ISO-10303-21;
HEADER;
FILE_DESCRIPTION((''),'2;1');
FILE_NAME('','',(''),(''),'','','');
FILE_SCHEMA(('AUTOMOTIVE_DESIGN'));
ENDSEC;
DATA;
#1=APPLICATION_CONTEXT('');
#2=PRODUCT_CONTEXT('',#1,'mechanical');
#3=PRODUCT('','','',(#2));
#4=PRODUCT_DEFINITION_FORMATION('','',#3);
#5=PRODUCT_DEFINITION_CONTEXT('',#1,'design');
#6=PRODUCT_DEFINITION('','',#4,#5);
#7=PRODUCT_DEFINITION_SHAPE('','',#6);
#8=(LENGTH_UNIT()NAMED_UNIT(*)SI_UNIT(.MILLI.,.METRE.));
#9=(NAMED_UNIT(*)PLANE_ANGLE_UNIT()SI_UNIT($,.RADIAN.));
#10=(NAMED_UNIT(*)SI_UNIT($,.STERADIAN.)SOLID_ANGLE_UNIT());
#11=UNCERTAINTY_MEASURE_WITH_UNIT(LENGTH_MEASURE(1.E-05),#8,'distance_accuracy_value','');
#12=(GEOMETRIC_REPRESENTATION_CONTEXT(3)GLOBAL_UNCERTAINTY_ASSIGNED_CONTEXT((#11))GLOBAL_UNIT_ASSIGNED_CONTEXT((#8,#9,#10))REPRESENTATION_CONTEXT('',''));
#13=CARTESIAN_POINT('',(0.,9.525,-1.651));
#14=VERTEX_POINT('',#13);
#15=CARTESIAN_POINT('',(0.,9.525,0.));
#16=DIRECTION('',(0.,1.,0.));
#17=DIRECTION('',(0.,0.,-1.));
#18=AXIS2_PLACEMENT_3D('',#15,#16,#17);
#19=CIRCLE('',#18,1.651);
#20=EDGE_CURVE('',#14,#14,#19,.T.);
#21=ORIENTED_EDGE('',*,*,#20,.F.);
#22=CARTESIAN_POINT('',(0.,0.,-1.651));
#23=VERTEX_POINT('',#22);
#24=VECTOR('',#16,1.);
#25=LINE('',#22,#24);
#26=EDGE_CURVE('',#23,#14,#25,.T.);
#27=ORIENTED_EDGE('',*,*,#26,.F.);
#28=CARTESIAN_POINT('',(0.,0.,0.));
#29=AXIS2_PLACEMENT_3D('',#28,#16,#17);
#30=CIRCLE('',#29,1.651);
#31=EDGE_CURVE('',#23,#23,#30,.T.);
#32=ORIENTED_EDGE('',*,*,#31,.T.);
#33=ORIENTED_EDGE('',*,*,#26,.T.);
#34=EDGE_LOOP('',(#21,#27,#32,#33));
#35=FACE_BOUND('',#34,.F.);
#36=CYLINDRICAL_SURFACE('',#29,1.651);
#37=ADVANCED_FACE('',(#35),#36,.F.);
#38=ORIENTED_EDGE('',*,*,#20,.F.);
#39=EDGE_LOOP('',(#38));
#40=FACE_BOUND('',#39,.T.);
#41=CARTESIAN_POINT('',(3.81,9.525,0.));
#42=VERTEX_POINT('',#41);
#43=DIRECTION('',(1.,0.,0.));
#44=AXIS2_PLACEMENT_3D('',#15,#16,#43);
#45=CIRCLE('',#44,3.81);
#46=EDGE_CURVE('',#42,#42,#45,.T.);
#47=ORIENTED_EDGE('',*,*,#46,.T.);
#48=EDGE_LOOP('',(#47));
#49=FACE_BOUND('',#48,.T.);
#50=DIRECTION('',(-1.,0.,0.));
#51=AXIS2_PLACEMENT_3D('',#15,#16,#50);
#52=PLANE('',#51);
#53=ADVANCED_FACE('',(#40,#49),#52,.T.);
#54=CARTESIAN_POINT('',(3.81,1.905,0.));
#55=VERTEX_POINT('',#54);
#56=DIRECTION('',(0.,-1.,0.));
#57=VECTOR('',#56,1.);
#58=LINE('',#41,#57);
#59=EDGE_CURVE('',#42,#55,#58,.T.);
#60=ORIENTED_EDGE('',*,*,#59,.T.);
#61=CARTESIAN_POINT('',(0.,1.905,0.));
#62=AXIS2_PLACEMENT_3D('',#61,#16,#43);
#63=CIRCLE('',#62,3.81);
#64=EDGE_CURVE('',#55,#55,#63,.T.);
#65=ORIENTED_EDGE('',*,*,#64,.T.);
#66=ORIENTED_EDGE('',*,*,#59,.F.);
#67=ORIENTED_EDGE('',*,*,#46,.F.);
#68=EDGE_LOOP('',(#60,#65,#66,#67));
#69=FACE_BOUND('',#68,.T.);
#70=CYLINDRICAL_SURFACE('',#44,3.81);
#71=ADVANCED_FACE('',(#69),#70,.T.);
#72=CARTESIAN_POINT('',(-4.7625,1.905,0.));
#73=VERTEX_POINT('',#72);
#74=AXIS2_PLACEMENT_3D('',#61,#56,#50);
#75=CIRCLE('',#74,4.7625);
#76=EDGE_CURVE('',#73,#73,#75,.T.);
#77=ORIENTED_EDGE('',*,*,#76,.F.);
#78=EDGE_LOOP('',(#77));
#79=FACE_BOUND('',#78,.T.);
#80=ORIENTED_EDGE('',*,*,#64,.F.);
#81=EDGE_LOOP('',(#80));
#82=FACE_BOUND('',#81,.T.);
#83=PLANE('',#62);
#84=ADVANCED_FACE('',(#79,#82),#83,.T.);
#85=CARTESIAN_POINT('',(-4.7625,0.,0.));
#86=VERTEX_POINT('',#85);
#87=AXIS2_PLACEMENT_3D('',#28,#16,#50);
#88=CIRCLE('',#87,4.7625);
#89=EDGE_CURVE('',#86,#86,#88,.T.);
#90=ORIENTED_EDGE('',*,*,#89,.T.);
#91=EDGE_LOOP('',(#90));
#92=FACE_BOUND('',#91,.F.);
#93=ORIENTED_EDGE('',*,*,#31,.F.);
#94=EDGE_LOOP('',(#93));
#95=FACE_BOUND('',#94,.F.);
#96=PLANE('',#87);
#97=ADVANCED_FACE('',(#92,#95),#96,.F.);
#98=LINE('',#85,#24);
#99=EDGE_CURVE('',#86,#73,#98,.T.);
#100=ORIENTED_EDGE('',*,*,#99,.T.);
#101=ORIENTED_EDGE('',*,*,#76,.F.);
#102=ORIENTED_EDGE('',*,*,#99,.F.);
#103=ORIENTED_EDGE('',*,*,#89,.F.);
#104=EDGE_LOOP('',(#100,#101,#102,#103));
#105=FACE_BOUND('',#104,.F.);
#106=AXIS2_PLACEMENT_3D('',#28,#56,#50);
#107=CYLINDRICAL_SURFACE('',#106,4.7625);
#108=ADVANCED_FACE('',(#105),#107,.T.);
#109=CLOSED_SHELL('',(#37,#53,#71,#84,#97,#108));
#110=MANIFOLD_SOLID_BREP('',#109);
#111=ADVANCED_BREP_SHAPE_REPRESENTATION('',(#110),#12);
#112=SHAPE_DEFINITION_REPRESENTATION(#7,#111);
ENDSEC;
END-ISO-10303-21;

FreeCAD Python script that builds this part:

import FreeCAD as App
import Part
import Sketcher

V = App.Vector
Q = App.Units.Quantity

doc = App.newDocument("Part")
body = doc.addObject("PartDesign::Body", "Body")

sketch1 = body.newObject("Sketcher::SketchObject", "Sketch")
sketch1.AttachmentSupport = (doc.getObject("XZ_Plane"), [""])
sketch1.MapMode = "FlatFace"
sketch1.addGeometry(Part.Circle(V(0, 0, 0), V(0, 0, 1), 4.8), False)
sketch1.addConstraint([
    Sketcher.Constraint("Coincident", 0, 3, -1, 1),
    Sketcher.Constraint("Diameter", 0, Q("0.375 in")),
])
pad1 = body.newObject("PartDesign::Pad", "Pad")
pad1.Profile = sketch1
pad1.Length = Q("0.375 in")
pad1.Reversed = True

sketch2 = body.newObject("Sketcher::SketchObject", "Sketch001")
sketch2.AttachmentSupport = (doc.getObject("XZ_Plane"), [""])
sketch2.MapMode = "FlatFace"
sketch2.AttachmentOffset = App.Placement(V(0, 0, -0.375 * 25.4), App.Rotation())
sketch2.addGeometry([
    Part.Circle(V(0, 0, 0), V(0, 0, 1), 6.3),
    Part.Circle(V(0, 0, 0), V(0, 0, 1), 3.8),
], False)
sketch2.addConstraint([
    Sketcher.Constraint("Coincident", 0, 3, -1, 1),
    Sketcher.Constraint("Coincident", 1, 3, -1, 1),
    Sketcher.Constraint("Diameter", 0, Q("0.5 in")),
    Sketcher.Constraint("Diameter", 1, Q("0.3 in")),
])
pocket1 = body.newObject("PartDesign::Pocket", "Pocket")
pocket1.Profile = sketch2
pocket1.Length = Q("0.3 in")
pocket1.Reversed = True

sketch3 = body.newObject("Sketcher::SketchObject", "Sketch002")
sketch3.AttachmentSupport = (doc.getObject("XZ_Plane"), [""])
sketch3.MapMode = "FlatFace"
sketch3.addGeometry(Part.Circle(V(0, 0, 0), V(0, 0, 1), 1.7), False)
sketch3.addConstraint([
    Sketcher.Constraint("Coincident", 0, 3, -1, 1),
    Sketcher.Constraint("Diameter", 0, Q("0.13 in")),
])
doc.recompute()
hole = body.newObject("PartDesign::Hole", "Hole")
hole.Profile = sketch3
hole.ThreadType = "None"
hole.Diameter = Q("0.13 in")
hole.DepthType = "ThroughAll"

doc.recompute()
